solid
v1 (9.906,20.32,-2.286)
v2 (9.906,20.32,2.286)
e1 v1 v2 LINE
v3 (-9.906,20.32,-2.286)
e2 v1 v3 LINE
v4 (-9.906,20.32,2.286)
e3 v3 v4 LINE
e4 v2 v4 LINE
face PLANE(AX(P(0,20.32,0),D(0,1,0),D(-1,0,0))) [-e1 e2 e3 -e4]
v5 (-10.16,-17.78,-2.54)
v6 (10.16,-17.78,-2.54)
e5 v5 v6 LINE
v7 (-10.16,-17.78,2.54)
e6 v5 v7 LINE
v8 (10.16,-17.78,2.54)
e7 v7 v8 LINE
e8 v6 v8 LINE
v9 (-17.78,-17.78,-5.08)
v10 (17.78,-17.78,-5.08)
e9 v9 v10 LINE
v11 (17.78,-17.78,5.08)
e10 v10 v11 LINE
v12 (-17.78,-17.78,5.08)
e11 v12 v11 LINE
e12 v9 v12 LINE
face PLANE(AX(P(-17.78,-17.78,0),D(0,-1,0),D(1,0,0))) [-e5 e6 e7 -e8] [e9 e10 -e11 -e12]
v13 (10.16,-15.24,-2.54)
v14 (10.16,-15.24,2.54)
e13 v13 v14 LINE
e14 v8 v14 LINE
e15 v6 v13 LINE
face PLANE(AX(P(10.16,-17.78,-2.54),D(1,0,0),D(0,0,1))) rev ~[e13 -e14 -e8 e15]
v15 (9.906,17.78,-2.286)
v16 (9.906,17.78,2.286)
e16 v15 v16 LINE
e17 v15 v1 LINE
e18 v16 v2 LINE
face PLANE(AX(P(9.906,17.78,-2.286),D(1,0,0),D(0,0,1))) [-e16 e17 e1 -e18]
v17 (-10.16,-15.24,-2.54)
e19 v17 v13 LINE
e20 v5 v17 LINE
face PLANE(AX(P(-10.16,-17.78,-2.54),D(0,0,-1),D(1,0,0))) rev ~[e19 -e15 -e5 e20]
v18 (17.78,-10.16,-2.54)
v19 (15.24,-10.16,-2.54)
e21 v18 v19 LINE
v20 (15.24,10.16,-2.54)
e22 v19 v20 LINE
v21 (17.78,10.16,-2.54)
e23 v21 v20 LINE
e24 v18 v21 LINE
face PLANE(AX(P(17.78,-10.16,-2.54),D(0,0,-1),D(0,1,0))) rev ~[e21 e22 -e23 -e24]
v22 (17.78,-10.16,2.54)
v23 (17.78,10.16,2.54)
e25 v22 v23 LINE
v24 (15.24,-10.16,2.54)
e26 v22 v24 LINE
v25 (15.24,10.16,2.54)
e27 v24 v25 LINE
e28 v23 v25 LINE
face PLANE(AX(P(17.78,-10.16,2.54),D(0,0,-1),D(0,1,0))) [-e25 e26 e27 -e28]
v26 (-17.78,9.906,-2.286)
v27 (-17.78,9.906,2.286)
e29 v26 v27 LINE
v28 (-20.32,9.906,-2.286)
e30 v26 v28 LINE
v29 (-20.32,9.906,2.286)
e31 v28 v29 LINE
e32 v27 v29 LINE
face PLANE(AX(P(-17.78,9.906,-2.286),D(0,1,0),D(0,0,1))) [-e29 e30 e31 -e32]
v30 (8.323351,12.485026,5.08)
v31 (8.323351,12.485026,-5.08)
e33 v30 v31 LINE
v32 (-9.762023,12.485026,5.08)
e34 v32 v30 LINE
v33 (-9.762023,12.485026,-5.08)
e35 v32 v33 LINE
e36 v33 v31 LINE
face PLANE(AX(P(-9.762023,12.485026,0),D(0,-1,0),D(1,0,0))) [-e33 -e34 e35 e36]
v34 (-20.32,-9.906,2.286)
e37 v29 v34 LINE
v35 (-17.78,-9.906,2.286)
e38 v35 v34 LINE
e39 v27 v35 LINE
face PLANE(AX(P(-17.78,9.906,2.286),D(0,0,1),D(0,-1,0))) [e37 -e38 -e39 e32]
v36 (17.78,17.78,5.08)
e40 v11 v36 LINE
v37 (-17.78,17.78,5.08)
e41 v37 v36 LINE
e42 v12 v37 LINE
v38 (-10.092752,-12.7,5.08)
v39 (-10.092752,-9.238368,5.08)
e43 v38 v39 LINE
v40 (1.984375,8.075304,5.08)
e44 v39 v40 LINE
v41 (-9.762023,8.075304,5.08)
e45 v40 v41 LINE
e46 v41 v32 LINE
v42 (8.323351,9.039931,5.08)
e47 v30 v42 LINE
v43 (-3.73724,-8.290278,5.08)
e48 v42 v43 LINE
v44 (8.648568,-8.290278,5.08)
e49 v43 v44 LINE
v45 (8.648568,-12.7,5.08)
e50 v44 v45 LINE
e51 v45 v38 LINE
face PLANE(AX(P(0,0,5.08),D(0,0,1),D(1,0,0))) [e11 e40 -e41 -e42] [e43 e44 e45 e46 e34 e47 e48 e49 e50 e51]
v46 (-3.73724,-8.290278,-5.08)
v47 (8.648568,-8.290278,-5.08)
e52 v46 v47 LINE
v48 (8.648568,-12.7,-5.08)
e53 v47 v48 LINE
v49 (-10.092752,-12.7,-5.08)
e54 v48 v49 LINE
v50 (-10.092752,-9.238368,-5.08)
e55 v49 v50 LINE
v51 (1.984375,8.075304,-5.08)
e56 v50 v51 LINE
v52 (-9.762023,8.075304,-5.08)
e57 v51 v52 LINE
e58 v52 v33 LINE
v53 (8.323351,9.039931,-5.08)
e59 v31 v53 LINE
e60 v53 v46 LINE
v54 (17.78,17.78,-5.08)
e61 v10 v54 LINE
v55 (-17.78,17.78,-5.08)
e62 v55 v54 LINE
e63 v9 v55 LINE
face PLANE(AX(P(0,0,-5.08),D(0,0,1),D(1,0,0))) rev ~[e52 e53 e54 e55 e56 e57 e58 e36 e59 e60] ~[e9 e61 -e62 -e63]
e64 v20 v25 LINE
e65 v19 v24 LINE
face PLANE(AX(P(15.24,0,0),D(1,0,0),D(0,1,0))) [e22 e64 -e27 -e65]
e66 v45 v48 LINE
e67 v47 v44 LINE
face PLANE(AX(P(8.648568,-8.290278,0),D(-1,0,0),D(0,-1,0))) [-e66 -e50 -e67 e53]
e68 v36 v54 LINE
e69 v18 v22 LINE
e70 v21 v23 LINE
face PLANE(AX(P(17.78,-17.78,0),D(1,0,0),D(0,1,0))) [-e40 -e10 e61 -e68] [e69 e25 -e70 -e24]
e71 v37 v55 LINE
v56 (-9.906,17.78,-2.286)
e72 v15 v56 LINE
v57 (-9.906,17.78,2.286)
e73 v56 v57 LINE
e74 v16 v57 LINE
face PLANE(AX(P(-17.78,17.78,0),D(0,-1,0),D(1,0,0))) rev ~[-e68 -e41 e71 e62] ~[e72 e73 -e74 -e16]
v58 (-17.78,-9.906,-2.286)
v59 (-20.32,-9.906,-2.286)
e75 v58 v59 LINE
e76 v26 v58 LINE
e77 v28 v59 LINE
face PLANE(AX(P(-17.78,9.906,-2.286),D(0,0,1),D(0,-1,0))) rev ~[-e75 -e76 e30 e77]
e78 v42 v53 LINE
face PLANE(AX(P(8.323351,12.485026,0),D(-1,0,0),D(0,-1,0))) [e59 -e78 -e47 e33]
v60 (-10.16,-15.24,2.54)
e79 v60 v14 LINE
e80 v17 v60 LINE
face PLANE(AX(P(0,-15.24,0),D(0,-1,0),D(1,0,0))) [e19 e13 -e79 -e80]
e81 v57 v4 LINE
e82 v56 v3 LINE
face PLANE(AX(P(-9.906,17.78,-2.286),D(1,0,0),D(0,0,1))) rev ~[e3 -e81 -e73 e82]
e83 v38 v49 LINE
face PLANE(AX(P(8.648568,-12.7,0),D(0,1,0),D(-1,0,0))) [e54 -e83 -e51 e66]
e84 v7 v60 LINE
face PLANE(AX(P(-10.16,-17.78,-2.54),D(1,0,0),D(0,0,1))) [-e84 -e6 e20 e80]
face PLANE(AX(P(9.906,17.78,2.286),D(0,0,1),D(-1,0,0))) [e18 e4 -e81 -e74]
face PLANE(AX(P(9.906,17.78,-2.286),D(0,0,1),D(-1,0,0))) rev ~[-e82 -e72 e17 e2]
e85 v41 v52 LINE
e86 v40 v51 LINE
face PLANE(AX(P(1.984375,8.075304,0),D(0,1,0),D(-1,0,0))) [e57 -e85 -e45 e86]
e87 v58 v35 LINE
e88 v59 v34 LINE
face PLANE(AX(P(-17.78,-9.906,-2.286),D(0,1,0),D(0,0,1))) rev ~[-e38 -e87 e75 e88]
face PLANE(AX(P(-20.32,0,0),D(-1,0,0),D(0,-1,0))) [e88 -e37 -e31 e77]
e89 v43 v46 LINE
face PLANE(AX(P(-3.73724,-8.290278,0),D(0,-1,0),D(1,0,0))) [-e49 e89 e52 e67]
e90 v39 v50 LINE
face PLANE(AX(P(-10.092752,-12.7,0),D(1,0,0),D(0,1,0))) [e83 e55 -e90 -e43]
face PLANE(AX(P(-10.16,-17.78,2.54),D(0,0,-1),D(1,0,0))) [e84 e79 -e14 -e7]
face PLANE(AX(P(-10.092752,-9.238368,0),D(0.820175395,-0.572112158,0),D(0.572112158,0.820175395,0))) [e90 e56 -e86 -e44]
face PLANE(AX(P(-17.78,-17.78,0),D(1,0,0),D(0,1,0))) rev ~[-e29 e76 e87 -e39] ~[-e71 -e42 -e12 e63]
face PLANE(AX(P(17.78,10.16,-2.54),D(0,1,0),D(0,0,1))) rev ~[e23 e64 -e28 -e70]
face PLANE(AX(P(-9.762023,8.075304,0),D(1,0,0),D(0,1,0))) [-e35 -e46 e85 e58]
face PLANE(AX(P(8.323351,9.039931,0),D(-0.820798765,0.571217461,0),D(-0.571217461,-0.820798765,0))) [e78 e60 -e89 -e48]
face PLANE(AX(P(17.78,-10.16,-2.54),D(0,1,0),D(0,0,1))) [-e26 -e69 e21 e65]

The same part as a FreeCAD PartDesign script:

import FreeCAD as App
import Part
import Sketcher
from FreeCAD import Vector
Q = App.Units.Quantity


def add_polygon(sketch, points):
    """Adds a closed chain of lines whose ends are joined by coincident constraints."""
    first, n = sketch.GeometryCount, len(points)
    for a, b in zip(points, points[1:] + points[:1]):
        sketch.addGeometry(Part.LineSegment(App.Vector(*a, 0), App.Vector(*b, 0)), False)
    for i in range(n):
        sketch.addConstraint(Sketcher.Constraint("Coincident", first + i, 2, first + (i + 1) % n, 1))

doc = App.newDocument("Part")
body = doc.addObject("PartDesign::Body", "Body")

sketch1 = body.newObject("Sketcher::SketchObject", "Sketch")
sketch1.AttachmentSupport = (doc.getObject("XY_Plane"), [""])
sketch1.MapMode = "FlatFace"
add_polygon(sketch1, [(-17.78, 17.78), (-17.78, -17.78), (17.78, -17.78), (17.78, 17.78)])
add_polygon(sketch1, [(-3.73724, -8.290278), (8.648568, -8.290278), (8.648568, -12.7), (-10.092752, -12.7), (-10.092752, -9.238368), (1.984375, 8.075304), (-9.762023, 8.075304), (-9.762023, 12.485026), (8.323351, 12.485026), (8.323351, 9.039931)])
sketch1.addConstraint(Sketcher.Constraint("Vertical", 0))
sketch1.addConstraint(Sketcher.Constraint("Horizontal", 1))
sketch1.addConstraint(Sketcher.Constraint("Vertical", 2))
sketch1.addConstraint(Sketcher.Constraint("Horizontal", 3))
sketch1.addConstraint(Sketcher.Constraint("Horizontal", 4))
sketch1.addConstraint(Sketcher.Constraint("Vertical", 5))
sketch1.addConstraint(Sketcher.Constraint("Horizontal", 6))
sketch1.addConstraint(Sketcher.Constraint("Vertical", 7))
sketch1.addConstraint(Sketcher.Constraint("Horizontal", 9))
sketch1.addConstraint(Sketcher.Constraint("Vertical", 10))
sketch1.addConstraint(Sketcher.Constraint("Horizontal", 11))
sketch1.addConstraint(Sketcher.Constraint("Vertical", 12))
sketch1.addConstraint(Sketcher.Constraint("Symmetric", 0, 2, 2, 2, -1, 1))
sketch1.addConstraint(Sketcher.Constraint("Equal", 3, 0))
sketch1.addConstraint(Sketcher.Constraint("Equal", 5, 10))
sketch1.addConstraint(Sketcher.Constraint("DistanceX", 1, 1, 1, 2, Q("1.4 in")))
sketch1.addConstraint(Sketcher.Constraint("DistanceY", 5, 2, -1, 1, Q("0.5 in")))
sketch1.addConstraint(Sketcher.Constraint("DistanceX", -1, 1, 8, 2, Q("0.078125 in")))
sketch1.addConstraint(Sketcher.Constraint("DistanceX", 6, 2, 6, 1, 18.741319))
sketch1.addConstraint(Sketcher.Constraint("DistanceY", 7, 1, 7, 2, 3.461632))
sketch1.addConstraint(Sketcher.Constraint("Distance", 8, 21.109719))
sketch1.addConstraint(Sketcher.Constraint("DistanceX", 4, 1, 4, 2, 12.385807))
sketch1.addConstraint(Sketcher.Constraint("DistanceX", 9, 2, 9, 1, 11.746398))
sketch1.addConstraint(Sketcher.Constraint("DistanceX", 11, 1, 11, 2, 18.085373))
sketch1.addConstraint(Sketcher.Constraint("DistanceY", 5, 2, 5, 1, 4.409722))
sketch1.addConstraint(Sketcher.Constraint("DistanceY", 12, 2, 12, 1, 3.445095))
sketch1.addConstraint(Sketcher.Constraint("DistanceX", 6, 2, -1, 1, 10.092752))
pad1 = body.newObject("PartDesign::Pad", "Pad")
pad1.Profile = sketch1
pad1.Length = Q("0.4 in")
pad1.Midplane = True

sketch2 = body.newObject("Sketcher::SketchObject", "Sketch001")
sketch2.AttachmentSupport = (doc.getObject("XZ_Plane"), [""])
sketch2.MapMode = "FlatFace"
sketch2.AttachmentOffset = App.Placement(Vector(0, 0, -0.7 * 25.4), App.Rotation())
add_polygon(sketch2, [(9.906, 2.286), (9.906, -2.286), (-9.906, -2.286), (-9.906, 2.286)])
sketch2.addConstraint(Sketcher.Constraint("Vertical", 0))
sketch2.addConstraint(Sketcher.Constraint("Horizontal", 1))
sketch2.addConstraint(Sketcher.Constraint("Vertical", 2))
sketch2.addConstraint(Sketcher.Constraint("Horizontal", 3))
sketch2.addConstraint(Sketcher.Constraint("Symmetric", 0, 2, 2, 2, -1, 1))
sketch2.addConstraint(Sketcher.Constraint("DistanceX", 1, 2, 1, 1, Q("0.78 in")))
sketch2.addConstraint(Sketcher.Constraint("DistanceY", 0, 2, 0, 1, Q("0.18 in")))
pad2 = body.newObject("PartDesign::Pad", "Pad001")
pad2.Profile = sketch2
pad2.Length = Q("0.1 in")
pad2.Reversed = True

sketch3 = body.newObject("Sketcher::SketchObject", "Sketch002")
sketch3.AttachmentSupport = (doc.getObject("YZ_Plane"), [""])
sketch3.MapMode = "FlatFace"
sketch3.AttachmentOffset = App.Placement(Vector(0, 0, -0.7 * 25.4), App.Rotation())
add_polygon(sketch3, [(9.906, 2.286), (9.906, -2.286), (-9.906, -2.286), (-9.906, 2.286)])
sketch3.addConstraint(Sketcher.Constraint("Vertical", 0))
sketch3.addConstraint(Sketcher.Constraint("Horizontal", 1))
sketch3.addConstraint(Sketcher.Constraint("Vertical", 2))
sketch3.addConstraint(Sketcher.Constraint("Horizontal", 3))
sketch3.addConstraint(Sketcher.Constraint("Symmetric", 0, 2, 2, 2, -1, 1))
sketch3.addConstraint(Sketcher.Constraint("DistanceX", 1, 2, 1, 1, Q("0.78 in")))
sketch3.addConstraint(Sketcher.Constraint("DistanceY", 0, 2, 0, 1, Q("0.18 in")))
pad3 = body.newObject("PartDesign::Pad", "Pad002")
pad3.Profile = sketch3
pad3.Length = Q("0.1 in")
pad3.Reversed = True

sketch4 = body.newObject("Sketcher::SketchObject", "Sketch003")
sketch4.AttachmentSupport = (doc.getObject("XZ_Plane"), [""])
sketch4.MapMode = "FlatFace"
sketch4.AttachmentOffset = App.Placement(Vector(0, 0, 0.7 * 25.4), App.Rotation())
add_polygon(sketch4, [(-10.16, 2.54), (-10.16, -2.54), (10.16, -2.54), (10.16, 2.54)])
sketch4.addConstraint(Sketcher.Constraint("Vertical", 0))
sketch4.addConstraint(Sketcher.Constraint("Horizontal", 1))
sketch4.addConstraint(Sketcher.Constraint("Vertical", 2))
sketch4.addConstraint(Sketcher.Constraint("Horizontal", 3))
sketch4.addConstraint(Sketcher.Constraint("Symmetric", 0, 2, 2, 2, -1, 1))
sketch4.addConstraint(Sketcher.Constraint("DistanceX", 1, 1, 1, 2, Q("0.8 in")))
sketch4.addConstraint(Sketcher.Constraint("DistanceY", 0, 2, 0, 1, Q("0.2 in")))
pocket1 = body.newObject("PartDesign::Pocket", "Pocket")
pocket1.Profile = sketch4
pocket1.Length = Q("0.1 in")

sketch5 = body.newObject("Sketcher::SketchObject", "Sketch004")
sketch5.AttachmentSupport = (doc.getObject("YZ_Plane"), [""])
sketch5.MapMode = "FlatFace"
sketch5.AttachmentOffset = App.Placement(Vector(0, 0, 0.7 * 25.4), App.Rotation())
add_polygon(sketch5, [(-10.16, 2.54), (-10.16, -2.54), (10.16, -2.54), (10.16, 2.54)])
sketch5.addConstraint(Sketcher.Constraint("Vertical", 0))
sketch5.addConstraint(Sketcher.Constraint("Horizontal", 1))
sketch5.addConstraint(Sketcher.Constraint("Vertical", 2))
sketch5.addConstraint(Sketcher.Constraint("Horizontal", 3))
sketch5.addConstraint(Sketcher.Constraint("Symmetric", 0, 2, 2, 2, -1, 1))
sketch5.addConstraint(Sketcher.Constraint("DistanceX", 1, 1, 1, 2, Q("0.8 in")))
sketch5.addConstraint(Sketcher.Constraint("DistanceY", 0, 2, 0, 1, Q("0.2 in")))
pocket2 = body.newObject("PartDesign::Pocket", "Pocket001")
pocket2.Profile = sketch5
pocket2.Length = Q("0.1 in")

doc.recompute()
